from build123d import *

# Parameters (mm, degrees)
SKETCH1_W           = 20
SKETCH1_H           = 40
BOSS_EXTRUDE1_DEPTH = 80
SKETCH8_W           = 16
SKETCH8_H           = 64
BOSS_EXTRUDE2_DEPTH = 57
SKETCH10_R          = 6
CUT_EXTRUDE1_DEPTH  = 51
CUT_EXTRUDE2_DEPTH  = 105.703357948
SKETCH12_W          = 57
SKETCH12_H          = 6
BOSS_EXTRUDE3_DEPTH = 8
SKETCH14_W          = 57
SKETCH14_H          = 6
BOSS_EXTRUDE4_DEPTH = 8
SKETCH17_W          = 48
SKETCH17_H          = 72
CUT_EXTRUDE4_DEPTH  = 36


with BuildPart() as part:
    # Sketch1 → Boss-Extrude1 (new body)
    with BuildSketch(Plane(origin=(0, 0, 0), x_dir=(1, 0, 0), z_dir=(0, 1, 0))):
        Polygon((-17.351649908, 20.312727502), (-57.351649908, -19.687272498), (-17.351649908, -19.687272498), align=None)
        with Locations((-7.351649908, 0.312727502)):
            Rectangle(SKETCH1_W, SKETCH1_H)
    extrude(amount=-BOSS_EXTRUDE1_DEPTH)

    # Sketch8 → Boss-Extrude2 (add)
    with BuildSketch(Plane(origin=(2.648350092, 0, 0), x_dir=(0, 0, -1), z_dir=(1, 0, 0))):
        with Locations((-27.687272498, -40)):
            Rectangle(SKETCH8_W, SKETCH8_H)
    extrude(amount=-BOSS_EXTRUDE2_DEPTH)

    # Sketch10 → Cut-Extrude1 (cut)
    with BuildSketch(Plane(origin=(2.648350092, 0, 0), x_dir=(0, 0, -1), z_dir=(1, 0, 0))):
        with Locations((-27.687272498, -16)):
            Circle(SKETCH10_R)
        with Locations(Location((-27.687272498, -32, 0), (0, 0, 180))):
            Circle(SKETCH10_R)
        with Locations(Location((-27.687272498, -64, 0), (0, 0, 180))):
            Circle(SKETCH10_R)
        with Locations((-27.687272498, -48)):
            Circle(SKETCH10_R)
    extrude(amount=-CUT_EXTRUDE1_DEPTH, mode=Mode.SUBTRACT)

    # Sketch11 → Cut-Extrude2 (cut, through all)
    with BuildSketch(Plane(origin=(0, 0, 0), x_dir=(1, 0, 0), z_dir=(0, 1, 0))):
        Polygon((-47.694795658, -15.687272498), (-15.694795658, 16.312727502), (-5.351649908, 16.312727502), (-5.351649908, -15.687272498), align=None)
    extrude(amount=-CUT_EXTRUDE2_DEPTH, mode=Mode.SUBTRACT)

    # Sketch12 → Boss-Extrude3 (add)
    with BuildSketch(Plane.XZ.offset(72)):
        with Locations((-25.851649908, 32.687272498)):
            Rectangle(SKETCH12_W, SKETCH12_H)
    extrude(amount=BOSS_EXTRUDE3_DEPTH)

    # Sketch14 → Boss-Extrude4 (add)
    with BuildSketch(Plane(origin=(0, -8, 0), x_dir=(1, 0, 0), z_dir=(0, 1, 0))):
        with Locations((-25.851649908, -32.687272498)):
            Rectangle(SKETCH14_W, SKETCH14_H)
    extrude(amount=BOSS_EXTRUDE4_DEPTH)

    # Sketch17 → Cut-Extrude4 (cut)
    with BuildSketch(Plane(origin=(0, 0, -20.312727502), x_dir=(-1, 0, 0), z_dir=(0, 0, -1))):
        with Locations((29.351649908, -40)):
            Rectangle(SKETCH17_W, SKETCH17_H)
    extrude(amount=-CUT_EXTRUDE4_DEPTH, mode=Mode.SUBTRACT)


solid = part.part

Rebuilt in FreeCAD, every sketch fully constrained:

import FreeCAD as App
import Part
import Sketcher
Q = App.Units.Quantity

doc = App.newDocument("Part")
params = doc.addObject("Spreadsheet::Sheet", "Params")
for row, (alias, value) in enumerate([
    ("sketch1_width", "60 mm"),
    ("sketch1_width2", "20 mm"),
    ("sketch1_height", "40 mm"),
    ("pad1_length", "80 mm"),
    ("sketch2_width", "64 mm"),
    ("sketch2_height", "16 mm"),
    ("pad2_length", "57 mm"),
    ("sketch3_diameter", "12 mm"),
    ("pocket1_length", "51 mm"),
    ("sketch4_height", "32 mm"),
    ("sketch5_width", "57 mm"),
    ("sketch5_height", "6 mm"),
    ("pad3_length", "8 mm"),
    ("sketch6_width", "57 mm"),
    ("sketch6_height", "6 mm"),
    ("pad4_length", "8 mm"),
    ("sketch7_width", "48 mm"),
    ("sketch7_height", "72 mm"),
    ("pocket3_length", "36 mm"),
], start=1):
    params.set(f"A{row}", alias)
    params.set(f"B{row}", "=" + value)
    params.setAlias(f"B{row}", alias)

body = doc.addObject("PartDesign::Body", "Body")

sketch1 = body.newObject("Sketcher::SketchObject", "Sketch")
sketch1.AttachmentSupport = (doc.getObject("XZ_Plane"), [""])
sketch1.MapMode = "FlatFace"
sketch1.addGeometry([
    Part.LineSegment(App.Vector(-17, -20, 0), App.Vector(-57, 20, 0)),
    Part.LineSegment(App.Vector(-57, 20, 0), App.Vector(3, 20, 0)),
    Part.LineSegment(App.Vector(3, 20, 0), App.Vector(3, -20, 0)),
    Part.LineSegment(App.Vector(3, -20, 0), App.Vector(-17, -20, 0)),
], False)
sketch1.addConstraint([
    Sketcher.Constraint("Coincident", 0, 2, 1, 1),
    Sketcher.Constraint("Coincident", 1, 2, 2, 1),
    Sketcher.Constraint("Coincident", 2, 2, 3, 1),
    Sketcher.Constraint("Coincident", 3, 2, 0, 1),
    Sketcher.Constraint("Horizontal", 1),
    Sketcher.Constraint("Vertical", 2),
    Sketcher.Constraint("Horizontal", 3),
    Sketcher.Constraint("DistanceX", 1, 1, 1, 2, Q("60 mm")),
    Sketcher.Constraint("DistanceX", 3, 2, 3, 1, Q("20 mm")),
    Sketcher.Constraint("DistanceY", 2, 2, 2, 1, Q("40 mm")),
    Sketcher.Constraint("DistanceX", 0, 2, -1, 1, Q("57.35165 mm")),
    Sketcher.Constraint("DistanceY", -1, 1, 0, 2, Q("19.687272 mm")),
])
sketch1.setExpression("Constraints[7]", "Params.sketch1_width")
sketch1.setExpression("Constraints[8]", "Params.sketch1_width2")
sketch1.setExpression("Constraints[9]", "Params.sketch1_height")
pad1 = body.newObject("PartDesign::Pad", "Pad")
pad1.Profile = sketch1
pad1.setExpression("Length", "Params.pad1_length")

sketch2 = body.newObject("Sketcher::SketchObject", "Sketch001")
sketch2.AttachmentSupport = (doc.getObject("YZ_Plane"), [""])
sketch2.MapMode = "FlatFace"
sketch2.AttachmentOffset = App.Placement(App.Vector(0, 0, 2.64835), App.Rotation())
sketch2.addGeometry([
    Part.LineSegment(App.Vector(-8, 36, 0), App.Vector(-72, 36, 0)),
    Part.LineSegment(App.Vector(-72, 36, 0), App.Vector(-72, 20, 0)),
    Part.LineSegment(App.Vector(-72, 20, 0), App.Vector(-8, 20, 0)),
    Part.LineSegment(App.Vector(-8, 20, 0), App.Vector(-8, 36, 0)),
], False)
sketch2.addConstraint([
    Sketcher.Constraint("Coincident", 0, 2, 1, 1),
    Sketcher.Constraint("Coincident", 1, 2, 2, 1),
    Sketcher.Constraint("Coincident", 2, 2, 3, 1),
    Sketcher.Constraint("Coincident", 3, 2, 0, 1),
    Sketcher.Constraint("Horizontal", 0),
    Sketcher.Constraint("Vertical", 1),
    Sketcher.Constraint("Horizontal", 2),
    Sketcher.Constraint("Vertical", 3),
    Sketcher.Constraint("DistanceX", 0, 2, 0, 1, Q("64 mm")),
    Sketcher.Constraint("DistanceY", 1, 2, 1, 1, Q("16 mm")),
    Sketcher.Constraint("DistanceX", 0, 2, -1, 1, Q("72 mm")),
    Sketcher.Constraint("DistanceY", -1, 1, 0, 2, Q("35.687272 mm")),
])
sketch2.setExpression("Constraints[8]", "Params.sketch2_width")
sketch2.setExpression("Constraints[9]", "Params.sketch2_height")
pad2 = body.newObject("PartDesign::Pad", "Pad001")
pad2.Profile = sketch2
pad2.setExpression("Length", "Params.pad2_length")
pad2.Reversed = True

sketch3 = body.newObject("Sketcher::SketchObject", "Sketch002")
sketch3.AttachmentSupport = (doc.getObject("YZ_Plane"), [""])
sketch3.MapMode = "FlatFace"
sketch3.AttachmentOffset = App.Placement(App.Vector(0, 0, 2.64835), App.Rotation())
sketch3.addGeometry([
    Part.Circle(App.Vector(-16, 28, 0), App.Vector(0, 0, 1), 6),
    Part.Circle(App.Vector(-32, 28, 0), App.Vector(0, 0, 1), 6),
    Part.Circle(App.Vector(-64, 28, 0), App.Vector(0, 0, 1), 6),
    Part.Circle(App.Vector(-48, 28, 0), App.Vector(0, 0, 1), 6),
], False)
sketch3.addConstraint([
    Sketcher.Constraint("Equal", 0, 1),
    Sketcher.Constraint("Equal", 1, 2),
    Sketcher.Constraint("Equal", 2, 3),
    Sketcher.Constraint("Horizontal", 0, 3, 1, 3),
    Sketcher.Constraint("Horizontal", 1, 3, 2, 3),
    Sketcher.Constraint("Horizontal", 2, 3, 3, 3),
    Sketcher.Constraint("Diameter", 0, Q("12 mm")),
    Sketcher.Constraint("DistanceX", 0, 3, -1, 1, Q("16 mm")),
    Sketcher.Constraint("DistanceX", 1, 3, -1, 1, Q("32 mm")),
    Sketcher.Constraint("DistanceX", 2, 3, -1, 1, Q("64 mm")),
    Sketcher.Constraint("DistanceX", 3, 3, -1, 1, Q("48 mm")),
    Sketcher.Constraint("DistanceY", -1, 1, 0, 3, Q("27.687272 mm")),
])
sketch3.setExpression("Constraints[6]", "Params.sketch3_diameter")
pocket1 = body.newObject("PartDesign::Pocket", "Pocket")
pocket1.Profile = sketch3
pocket1.setExpression("Length", "Params.pocket1_length")

sketch4 = body.newObject("Sketcher::SketchObject", "Sketch003")
sketch4.AttachmentSupport = (doc.getObject("XZ_Plane"), [""])
sketch4.MapMode = "FlatFace"
sketch4.addGeometry([
    Part.LineSegment(App.Vector(-16, -16, 0), App.Vector(-48, 16, 0)),
    Part.LineSegment(App.Vector(-48, 16, 0), App.Vector(-5, 16, 0)),
    Part.LineSegment(App.Vector(-5, 16, 0), App.Vector(-5, -16, 0)),
    Part.LineSegment(App.Vector(-5, -16, 0), App.Vector(-16, -16, 0)),
], False)
sketch4.addConstraint([
    Sketcher.Constraint("Coincident", 0, 2, 1, 1),
    Sketcher.Constraint("Coincident", 1, 2, 2, 1),
    Sketcher.Constraint("Coincident", 2, 2, 3, 1),
    Sketcher.Constraint("Coincident", 3, 2, 0, 1),
    Sketcher.Constraint("Horizontal", 1),
    Sketcher.Constraint("Vertical", 2),
    Sketcher.Constraint("Horizontal", 3),
    Sketcher.Constraint("DistanceY", 2, 2, 2, 1, Q("32 mm")),
    Sketcher.Constraint("Angle", 0, Q("135 deg")),
    Sketcher.Constraint("DistanceX", 1, 1, 1, 2, Q("42.343146 mm")),
    Sketcher.Constraint("DistanceX", 1, 2, -1, 1, Q("5.35165 mm")),
    Sketcher.Constraint("DistanceY", -1, 1, 0, 2, Q("15.687272 mm")),
])
sketch4.setExpression("Constraints[7]", "Params.sketch4_height")
pocket2 = body.newObject("PartDesign::Pocket", "Pocket001")
pocket2.Profile = sketch4
pocket2.Type = "ThroughAll"
pocket2.Reversed = True

sketch5 = body.newObject("Sketcher::SketchObject", "Sketch004")
sketch5.AttachmentSupport = (doc.getObject("XZ_Plane"), [""])
sketch5.MapMode = "FlatFace"
sketch5.AttachmentOffset = App.Placement(App.Vector(0, 0, 72), App.Rotation())
sketch5.addGeometry([
    Part.LineSegment(App.Vector(-54, 36, 0), App.Vector(-54, 30, 0)),
    Part.LineSegment(App.Vector(-54, 30, 0), App.Vector(3, 30, 0)),
    Part.LineSegment(App.Vector(3, 30, 0), App.Vector(3, 36, 0)),
    Part.LineSegment(App.Vector(3, 36, 0), App.Vector(-54, 36, 0)),
], False)
sketch5.addConstraint([
    Sketcher.Constraint("Coincident", 0, 2, 1, 1),
    Sketcher.Constraint("Coincident", 1, 2, 2, 1),
    Sketcher.Constraint("Coincident", 2, 2, 3, 1),
    Sketcher.Constraint("Coincident", 3, 2, 0, 1),
    Sketcher.Constraint("Vertical", 0),
    Sketcher.Constraint("Horizontal", 1),
    Sketcher.Constraint("Vertical", 2),
    Sketcher.Constraint("Horizontal", 3),
    Sketcher.Constraint("DistanceX", 1, 1, 1, 2, Q("57 mm")),
    Sketcher.Constraint("DistanceY", 0, 2, 0, 1, Q("6 mm")),
    Sketcher.Constraint("DistanceX", 0, 2, -1, 1, Q("54.35165 mm")),
    Sketcher.Constraint("DistanceY", -1, 1, 0, 2, Q("29.687272 mm")),
])
sketch5.setExpression("Constraints[8]", "Params.sketch5_width")
sketch5.setExpression("Constraints[9]", "Params.sketch5_height")
pad3 = body.newObject("PartDesign::Pad", "Pad002")
pad3.Profile = sketch5
pad3.setExpression("Length", "Params.pad3_length")

sketch6 = body.newObject("Sketcher::SketchObject", "Sketch005")
sketch6.AttachmentSupport = (doc.getObject("XZ_Plane"), [""])
sketch6.MapMode = "FlatFace"
sketch6.AttachmentOffset = App.Placement(App.Vector(0, 0, 8), App.Rotation())
sketch6.addGeometry([
    Part.LineSegment(App.Vector(-54, 30, 0), App.Vector(-54, 36, 0)),
    Part.LineSegment(App.Vector(-54, 36, 0), App.Vector(3, 36, 0)),
    Part.LineSegment(App.Vector(3, 36, 0), App.Vector(3, 30, 0)),
    Part.LineSegment(App.Vector(3, 30, 0), App.Vector(-54, 30, 0)),
], False)
sketch6.addConstraint([
    Sketcher.Constraint("Coincident", 0, 2, 1, 1),
    Sketcher.Constraint("Coincident", 1, 2, 2, 1),
    Sketcher.Constraint("Coincident", 2, 2, 3, 1),
    Sketcher.Constraint("Coincident", 3, 2, 0, 1),
    Sketcher.Constraint("Vertical", 0),
    Sketcher.Constraint("Horizontal", 1),
    Sketcher.Constraint("Vertical", 2),
    Sketcher.Constraint("Horizontal", 3),
    Sketcher.Constraint("DistanceX", 1, 1, 1, 2, Q("57 mm")),
    Sketcher.Constraint("DistanceY", 0, 1, 0, 2, Q("6 mm")),
    Sketcher.Constraint("DistanceX", 0, 2, -1, 1, Q("54.35165 mm")),
    Sketcher.Constraint("DistanceY", -1, 1, 0, 2, Q("35.687272 mm")),
])
sketch6.setExpression("Constraints[8]", "Params.sketch6_width")
sketch6.setExpression("Constraints[9]", "Params.sketch6_height")
pad4 = body.newObject("PartDesign::Pad", "Pad003")
pad4.Profile = sketch6
pad4.setExpression("Length", "Params.pad4_length")
pad4.Reversed = True

sketch7 = body.newObject("Sketcher::SketchObject", "Sketch006")
sketch7.AttachmentSupport = (doc.getObject("XY_Plane"), [""])
sketch7.MapMode = "FlatFace"
sketch7.AttachmentOffset = App.Placement(App.Vector(0, 0, -20.312728), App.Rotation())
sketch7.addGeometry([
    Part.LineSegment(App.Vector(-5, -4, 0), App.Vector(-5, -76, 0)),
    Part.LineSegment(App.Vector(-5, -76, 0), App.Vector(-53, -76, 0)),
    Part.LineSegment(App.Vector(-53, -76, 0), App.Vector(-53, -4, 0)),
    Part.LineSegment(App.Vector(-53, -4, 0), App.Vector(-5, -4, 0)),
], False)
sketch7.addConstraint([
    Sketcher.Constraint("Coincident", 0, 2, 1, 1),
    Sketcher.Constraint("Coincident", 1, 2, 2, 1),
    Sketcher.Constraint("Coincident", 2, 2, 3, 1),
    Sketcher.Constraint("Coincident", 3, 2, 0, 1),
    Sketcher.Constraint("Vertical", 0),
    Sketcher.Constraint("Horizontal", 1),
    Sketcher.Constraint("Vertical", 2),
    Sketcher.Constraint("Horizontal", 3),
    Sketcher.Constraint("DistanceX", 1, 2, 1, 1, Q("48 mm")),
    Sketcher.Constraint("DistanceY", 0, 2, 0, 1, Q("72 mm")),
    Sketcher.Constraint("DistanceY", 0, 2, -1, 1, Q("76 mm")),
    Sketcher.Constraint("DistanceX", 0, 2, -1, 1, Q("5.35165 mm")),
])
sketch7.setExpression("Constraints[8]", "Params.sketch7_width")
sketch7.setExpression("Constraints[9]", "Params.sketch7_height")
pocket3 = body.newObject("PartDesign::Pocket", "Pocket002")
pocket3.Profile = sketch7
pocket3.setExpression("Length", "Params.pocket3_length")
pocket3.Reversed = True

doc.recompute()
